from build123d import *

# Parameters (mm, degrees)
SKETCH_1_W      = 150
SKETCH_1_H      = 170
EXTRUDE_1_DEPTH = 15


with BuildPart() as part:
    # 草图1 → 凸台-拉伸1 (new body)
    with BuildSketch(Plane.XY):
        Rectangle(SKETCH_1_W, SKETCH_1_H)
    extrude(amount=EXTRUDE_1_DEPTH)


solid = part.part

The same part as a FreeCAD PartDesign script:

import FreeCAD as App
import Part
import Sketcher
Q = App.Units.Quantity


def add_polygon(sketch, points):
    """Adds a closed chain of lines whose ends are joined by coincident constraints."""
    first, n = sketch.GeometryCount, len(points)
    for a, b in zip(points, points[1:] + points[:1]):
        sketch.addGeometry(Part.LineSegment(App.Vector(*a, 0), App.Vector(*b, 0)), False)
    for i in range(n):
        sketch.addConstraint(Sketcher.Constraint("Coincident", first + i, 2, first + (i + 1) % n, 1))

doc = App.newDocument("Part")
body = doc.addObject("PartDesign::Body", "Body")

sketch1 = doc.addObject("Sketcher::SketchObject", "Sketch")
body.addObject(sketch1)
sketch1.AttachmentSupport = (doc.XY_Plane, [""])
sketch1.MapMode = "FlatFace"
add_polygon(sketch1, [(-75, 85), (-75, -85), (75, -85), (75, 85)])
sketch1.addConstraint([
    Sketcher.Constraint("Vertical", 0),
    Sketcher.Constraint("Horizontal", 1),
    Sketcher.Constraint("Vertical", 2),
    Sketcher.Constraint("Horizontal", 3),
    Sketcher.Constraint("Symmetric", 0, 2, 2, 2, -1, 1),
    Sketcher.Constraint("DistanceX", 1, 1, 1, 2, Q("150 mm")),
    Sketcher.Constraint("DistanceY", 0, 2, 0, 1, Q("170 mm")),
])
pad1 = doc.addObject("PartDesign::Pad", "Pad")
body.addObject(pad1)
pad1.Profile = sketch1
pad1.Length = 15

doc.recompute()
